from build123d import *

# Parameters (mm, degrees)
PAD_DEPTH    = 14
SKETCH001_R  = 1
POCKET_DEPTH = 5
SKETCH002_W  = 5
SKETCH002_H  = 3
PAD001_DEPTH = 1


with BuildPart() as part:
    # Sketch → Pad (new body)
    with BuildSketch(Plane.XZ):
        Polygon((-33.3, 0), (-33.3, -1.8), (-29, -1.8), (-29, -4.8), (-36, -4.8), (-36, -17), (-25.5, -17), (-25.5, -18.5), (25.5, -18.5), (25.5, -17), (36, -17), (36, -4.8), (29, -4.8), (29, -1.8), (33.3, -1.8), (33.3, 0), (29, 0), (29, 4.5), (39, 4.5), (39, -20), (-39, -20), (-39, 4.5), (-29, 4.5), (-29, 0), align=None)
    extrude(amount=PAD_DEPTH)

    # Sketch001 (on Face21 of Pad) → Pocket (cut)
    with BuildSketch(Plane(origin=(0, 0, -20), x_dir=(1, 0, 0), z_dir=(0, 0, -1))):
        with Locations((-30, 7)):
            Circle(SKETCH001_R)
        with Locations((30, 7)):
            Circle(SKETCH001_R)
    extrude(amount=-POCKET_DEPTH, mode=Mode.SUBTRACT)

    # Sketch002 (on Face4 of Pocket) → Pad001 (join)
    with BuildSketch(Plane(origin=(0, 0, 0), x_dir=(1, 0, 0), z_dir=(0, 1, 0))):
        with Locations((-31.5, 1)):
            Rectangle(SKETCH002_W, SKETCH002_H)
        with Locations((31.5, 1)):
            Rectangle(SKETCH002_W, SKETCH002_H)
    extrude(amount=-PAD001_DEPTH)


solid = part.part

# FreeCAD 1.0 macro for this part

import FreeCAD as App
import Part
import Sketcher
from FreeCAD import Vector
Q = App.Units.Quantity

doc = App.newDocument("Part")
params = doc.addObject("Spreadsheet::Sheet", "Params")
for row, (alias, value) in enumerate([
    ("sketch1_width", "10 mm"),
    ("sketch1_width2", "78 mm"),
    ("sketch1_width3", "7 mm"),
    ("sketch1_width4", "51 mm"),
    ("sketch1_height", "3 mm"),
    ("pad1_length", "14 mm"),
    ("sketch2_diameter", "2 mm"),
    ("pocket1_length", "5 mm"),
    ("sketch3_width", "5 mm"),
    ("sketch3_height", "3 mm"),
    ("pad2_length", "1 mm"),
], start=1):
    params.set(f"A{row}", alias)
    params.set(f"B{row}", "=" + value)
    params.setAlias(f"B{row}", alias)

body = doc.addObject("PartDesign::Body", "Body")

# Sketch on XZ plane
sketch1 = body.newObject("Sketcher::SketchObject", "Sketch")
sketch1.AttachmentSupport = (doc.getObject("XZ_Plane"), [""])
sketch1.MapMode = "FlatFace"
sketch1.addGeometry([
    Part.LineSegment(Vector(-33.3, -1.8, 0), Vector(-33.3, 0, 0)),  # 0
    Part.LineSegment(Vector(-33.3, 0, 0), Vector(-29, 0, 0)),  # 1
    Part.LineSegment(Vector(-29, 0, 0), Vector(-29, 4.5, 0)),  # 2
    Part.LineSegment(Vector(-29, 4.5, 0), Vector(-39, 4.5, 0)),  # 3
    Part.LineSegment(Vector(-39, 4.5, 0), Vector(-39, -20, 0)),  # 4
    Part.LineSegment(Vector(-39, -20, 0), Vector(39, -20, 0)),  # 5
    Part.LineSegment(Vector(39, -20, 0), Vector(39, 4.5, 0)),  # 6
    Part.LineSegment(Vector(39, 4.5, 0), Vector(29, 4.5, 0)),  # 7
    Part.LineSegment(Vector(29, 4.5, 0), Vector(29, 0, 0)),  # 8
    Part.LineSegment(Vector(29, 0, 0), Vector(33.3, 0, 0)),  # 9
    Part.LineSegment(Vector(33.3, 0, 0), Vector(33.3, -1.8, 0)),  # 10
    Part.LineSegment(Vector(33.3, -1.8, 0), Vector(29, -1.8, 0)),  # 11
    Part.LineSegment(Vector(29, -1.8, 0), Vector(29, -4.8, 0)),  # 12
    Part.LineSegment(Vector(29, -4.8, 0), Vector(36, -4.8, 0)),  # 13
    Part.LineSegment(Vector(36, -4.8, 0), Vector(36, -17, 0)),  # 14
    Part.LineSegment(Vector(36, -17, 0), Vector(25.5, -17, 0)),  # 15
    Part.LineSegment(Vector(25.5, -17, 0), Vector(25.5, -18.5, 0)),  # 16
    Part.LineSegment(Vector(25.5, -18.5, 0), Vector(-25.5, -18.5, 0)),  # 17
    Part.LineSegment(Vector(-25.5, -18.5, 0), Vector(-25.5, -17, 0)),  # 18
    Part.LineSegment(Vector(-25.5, -17, 0), Vector(-36, -17, 0)),  # 19
    Part.LineSegment(Vector(-36, -17, 0), Vector(-36, -4.8, 0)),  # 20
    Part.LineSegment(Vector(-36, -4.8, 0), Vector(-29, -4.8, 0)),  # 21
    Part.LineSegment(Vector(-29, -4.8, 0), Vector(-29, -1.8, 0)),  # 22
    Part.LineSegment(Vector(-29, -1.8, 0), Vector(-33.3, -1.8, 0)),  # 23
], False)
sketch1.addConstraint([
    Sketcher.Constraint("Coincident", 0, 2, 1, 1),
    Sketcher.Constraint("Coincident", 1, 2, 2, 1),
    Sketcher.Constraint("Coincident", 2, 2, 3, 1),
    Sketcher.Constraint("Coincident", 3, 2, 4, 1),
    Sketcher.Constraint("Coincident", 4, 2, 5, 1),
    Sketcher.Constraint("Coincident", 5, 2, 6, 1),
    Sketcher.Constraint("Coincident", 6, 2, 7, 1),
    Sketcher.Constraint("Coincident", 7, 2, 8, 1),
    Sketcher.Constraint("Coincident", 8, 2, 9, 1),
    Sketcher.Constraint("Coincident", 9, 2, 10, 1),
    Sketcher.Constraint("Coincident", 10, 2, 11, 1),
    Sketcher.Constraint("Coincident", 11, 2, 12, 1),
    Sketcher.Constraint("Coincident", 12, 2, 13, 1),
    Sketcher.Constraint("Coincident", 13, 2, 14, 1),
    Sketcher.Constraint("Coincident", 14, 2, 15, 1),
    Sketcher.Constraint("Coincident", 15, 2, 16, 1),
    Sketcher.Constraint("Coincident", 16, 2, 17, 1),
    Sketcher.Constraint("Coincident", 17, 2, 18, 1),
    Sketcher.Constraint("Coincident", 18, 2, 19, 1),
    Sketcher.Constraint("Coincident", 19, 2, 20, 1),
    Sketcher.Constraint("Coincident", 20, 2, 21, 1),
    Sketcher.Constraint("Coincident", 21, 2, 22, 1),
    Sketcher.Constraint("Coincident", 22, 2, 23, 1),
    Sketcher.Constraint("Coincident", 23, 2, 0, 1),
    Sketcher.Constraint("Vertical", 0),
    Sketcher.Constraint("Horizontal", 1),
    Sketcher.Constraint("Vertical", 2),
    Sketcher.Constraint("Horizontal", 3),
    Sketcher.Constraint("Vertical", 4),
    Sketcher.Constraint("Horizontal", 5),
    Sketcher.Constraint("Vertical", 6),
    Sketcher.Constraint("Horizontal", 7),
    Sketcher.Constraint("Vertical", 8),
    Sketcher.Constraint("Horizontal", 9),
    Sketcher.Constraint("Vertical", 10),
    Sketcher.Constraint("Horizontal", 11),
    Sketcher.Constraint("Vertical", 12),
    Sketcher.Constraint("Horizontal", 13),
    Sketcher.Constraint("Vertical", 14),
    Sketcher.Constraint("Horizontal", 15),
    Sketcher.Constraint("Vertical", 16),
    Sketcher.Constraint("Horizontal", 17),
    Sketcher.Constraint("Vertical", 18),
    Sketcher.Constraint("Horizontal", 19),
    Sketcher.Constraint("Vertical", 20),
    Sketcher.Constraint("Horizontal", 21),
    Sketcher.Constraint("Vertical", 22),
    Sketcher.Constraint("Horizontal", 23),
    Sketcher.Constraint("Symmetric", 1, 2, 8, 2, -1, 1),
    Sketcher.Constraint("Symmetric", 3, 2, 6, 2, -2),
    Sketcher.Constraint("Symmetric", 0, 2, 9, 2, -2),
    Sketcher.Constraint("Symmetric", 15, 2, 18, 2, -2),
    Sketcher.Constraint("Symmetric", 13, 2, 20, 2, -2),
    Sketcher.Constraint("Symmetric", 11, 2, 22, 2, -2),
    Sketcher.Constraint("Vertical", 8, 2, 11, 2),
    Sketcher.Constraint("DistanceX", 3, 2, 3, 1, Q("10 mm")),
    Sketcher.Constraint("DistanceX", 5, 1, 5, 2, Q("78 mm")),
    Sketcher.Constraint("DistanceX", 13, 1, 13, 2, Q("7 mm")),
    Sketcher.Constraint("DistanceX", 17, 2, 17, 1, Q("51 mm")),
    Sketcher.Constraint("DistanceY", 12, 2, 12, 1, Q("3 mm")),
    Sketcher.Constraint("DistanceX", 1, 1, 1, 2, Q("4.3 mm")),
    Sketcher.Constraint("DistanceY", 0, 1, 0, 2, Q("1.8 mm")),
    Sketcher.Constraint("DistanceY", 2, 1, 2, 2, Q("4.5 mm")),
    Sketcher.Constraint("DistanceY", 4, 2, 4, 1, Q("24.5 mm")),
    Sketcher.Constraint("DistanceY", 14, 2, 14, 1, Q("12.2 mm")),
    Sketcher.Constraint("DistanceY", 16, 2, 16, 1, Q("1.5 mm")),
])
sketch1.setExpression("Constraints[55]", "Params.sketch1_width")
sketch1.setExpression("Constraints[56]", "Params.sketch1_width2")
sketch1.setExpression("Constraints[57]", "Params.sketch1_width3")
sketch1.setExpression("Constraints[58]", "Params.sketch1_width4")
sketch1.setExpression("Constraints[59]", "Params.sketch1_height")
pad1 = body.newObject("PartDesign::Pad", "Pad")
pad1.Profile = sketch1
pad1.setExpression("Length", "Params.pad1_length")

# Sketch on XY plane
sketch2 = body.newObject("Sketcher::SketchObject", "Sketch001")
sketch2.AttachmentSupport = (doc.getObject("XY_Plane"), [""])
sketch2.MapMode = "FlatFace"
sketch2.AttachmentOffset = App.Placement(Vector(0, 0, -20), App.Rotation())
sketch2.addGeometry([
    Part.Circle(Vector(-30, -7, 0), Vector(0, 0, 1), 1),
    Part.Circle(Vector(30, -7, 0), Vector(0, 0, 1), 1),
], False)
sketch2.addConstraint([
    Sketcher.Constraint("Equal", 0, 1),
    Sketcher.Constraint("Symmetric", 0, 3, 1, 3, -2),
    Sketcher.Constraint("Diameter", 0, Q("2 mm")),
    Sketcher.Constraint("DistanceX", 0, 3, -1, 1, Q("30 mm")),
    Sketcher.Constraint("DistanceY", 0, 3, -1, 1, Q("7 mm")),
])
sketch2.setExpression("Constraints[2]", "Params.sketch2_diameter")
pocket1 = body.newObject("PartDesign::Pocket", "Pocket")
pocket1.Profile = sketch2
pocket1.setExpression("Length", "Params.pocket1_length")
pocket1.Reversed = True

# Sketch on XZ plane
sketch3 = body.newObject("Sketcher::SketchObject", "Sketch002")
sketch3.AttachmentSupport = (doc.getObject("XZ_Plane"), [""])
sketch3.MapMode = "FlatFace"
sketch3.addGeometry([
    Part.LineSegment(Vector(-34, -2.5, 0), Vector(-34, 0.5, 0)),  # 0
    Part.LineSegment(Vector(-34, 0.5, 0), Vector(-29, 0.5, 0)),  # 1
    Part.LineSegment(Vector(-29, 0.5, 0), Vector(-29, -2.5, 0)),  # 2
    Part.LineSegment(Vector(-29, -2.5, 0), Vector(-34, -2.5, 0)),  # 3
    Part.LineSegment(Vector(29, -2.5, 0), Vector(29, 0.5, 0)),  # 4
    Part.LineSegment(Vector(29, 0.5, 0), Vector(34, 0.5, 0)),  # 5
    Part.LineSegment(Vector(34, 0.5, 0), Vector(34, -2.5, 0)),  # 6
    Part.LineSegment(Vector(34, -2.5, 0), Vector(29, -2.5, 0)),  # 7
], False)
sketch3.addConstraint([
    Sketcher.Constraint("Coincident", 0, 2, 1, 1),
    Sketcher.Constraint("Coincident", 1, 2, 2, 1),
    Sketcher.Constraint("Coincident", 2, 2, 3, 1),
    Sketcher.Constraint("Coincident", 3, 2, 0, 1),
    Sketcher.Constraint("Coincident", 4, 2, 5, 1),
    Sketcher.Constraint("Coincident", 5, 2, 6, 1),
    Sketcher.Constraint("Coincident", 6, 2, 7, 1),
    Sketcher.Constraint("Coincident", 7, 2, 4, 1),
    Sketcher.Constraint("Vertical", 0),
    Sketcher.Constraint("Horizontal", 1),
    Sketcher.Constraint("Vertical", 2),
    Sketcher.Constraint("Horizontal", 3),
    Sketcher.Constraint("Vertical", 4),
    Sketcher.Constraint("Horizontal", 5),
    Sketcher.Constraint("Vertical", 6),
    Sketcher.Constraint("Horizontal", 7),
    Sketcher.Constraint("Symmetric", 1, 2, 4, 2, -2),
    Sketcher.Constraint("Symmetric", 3, 2, 6, 2, -2),
    Sketcher.Constraint("DistanceX", 1, 1, 1, 2, Q("5 mm")),
    Sketcher.Constraint("DistanceY", 0, 1, 0, 2, Q("3 mm")),
    Sketcher.Constraint("DistanceX", 0, 2, -1, 1, Q("34 mm")),
    Sketcher.Constraint("DistanceY", -1, 1, 0, 2, Q("0.5 mm")),
])
sketch3.setExpression("Constraints[18]", "Params.sketch3_width")
sketch3.setExpression("Constraints[19]", "Params.sketch3_height")
pad2 = body.newObject("PartDesign::Pad", "Pad001")
pad2.Profile = sketch3
pad2.setExpression("Length", "Params.pad2_length")

doc.recompute()
